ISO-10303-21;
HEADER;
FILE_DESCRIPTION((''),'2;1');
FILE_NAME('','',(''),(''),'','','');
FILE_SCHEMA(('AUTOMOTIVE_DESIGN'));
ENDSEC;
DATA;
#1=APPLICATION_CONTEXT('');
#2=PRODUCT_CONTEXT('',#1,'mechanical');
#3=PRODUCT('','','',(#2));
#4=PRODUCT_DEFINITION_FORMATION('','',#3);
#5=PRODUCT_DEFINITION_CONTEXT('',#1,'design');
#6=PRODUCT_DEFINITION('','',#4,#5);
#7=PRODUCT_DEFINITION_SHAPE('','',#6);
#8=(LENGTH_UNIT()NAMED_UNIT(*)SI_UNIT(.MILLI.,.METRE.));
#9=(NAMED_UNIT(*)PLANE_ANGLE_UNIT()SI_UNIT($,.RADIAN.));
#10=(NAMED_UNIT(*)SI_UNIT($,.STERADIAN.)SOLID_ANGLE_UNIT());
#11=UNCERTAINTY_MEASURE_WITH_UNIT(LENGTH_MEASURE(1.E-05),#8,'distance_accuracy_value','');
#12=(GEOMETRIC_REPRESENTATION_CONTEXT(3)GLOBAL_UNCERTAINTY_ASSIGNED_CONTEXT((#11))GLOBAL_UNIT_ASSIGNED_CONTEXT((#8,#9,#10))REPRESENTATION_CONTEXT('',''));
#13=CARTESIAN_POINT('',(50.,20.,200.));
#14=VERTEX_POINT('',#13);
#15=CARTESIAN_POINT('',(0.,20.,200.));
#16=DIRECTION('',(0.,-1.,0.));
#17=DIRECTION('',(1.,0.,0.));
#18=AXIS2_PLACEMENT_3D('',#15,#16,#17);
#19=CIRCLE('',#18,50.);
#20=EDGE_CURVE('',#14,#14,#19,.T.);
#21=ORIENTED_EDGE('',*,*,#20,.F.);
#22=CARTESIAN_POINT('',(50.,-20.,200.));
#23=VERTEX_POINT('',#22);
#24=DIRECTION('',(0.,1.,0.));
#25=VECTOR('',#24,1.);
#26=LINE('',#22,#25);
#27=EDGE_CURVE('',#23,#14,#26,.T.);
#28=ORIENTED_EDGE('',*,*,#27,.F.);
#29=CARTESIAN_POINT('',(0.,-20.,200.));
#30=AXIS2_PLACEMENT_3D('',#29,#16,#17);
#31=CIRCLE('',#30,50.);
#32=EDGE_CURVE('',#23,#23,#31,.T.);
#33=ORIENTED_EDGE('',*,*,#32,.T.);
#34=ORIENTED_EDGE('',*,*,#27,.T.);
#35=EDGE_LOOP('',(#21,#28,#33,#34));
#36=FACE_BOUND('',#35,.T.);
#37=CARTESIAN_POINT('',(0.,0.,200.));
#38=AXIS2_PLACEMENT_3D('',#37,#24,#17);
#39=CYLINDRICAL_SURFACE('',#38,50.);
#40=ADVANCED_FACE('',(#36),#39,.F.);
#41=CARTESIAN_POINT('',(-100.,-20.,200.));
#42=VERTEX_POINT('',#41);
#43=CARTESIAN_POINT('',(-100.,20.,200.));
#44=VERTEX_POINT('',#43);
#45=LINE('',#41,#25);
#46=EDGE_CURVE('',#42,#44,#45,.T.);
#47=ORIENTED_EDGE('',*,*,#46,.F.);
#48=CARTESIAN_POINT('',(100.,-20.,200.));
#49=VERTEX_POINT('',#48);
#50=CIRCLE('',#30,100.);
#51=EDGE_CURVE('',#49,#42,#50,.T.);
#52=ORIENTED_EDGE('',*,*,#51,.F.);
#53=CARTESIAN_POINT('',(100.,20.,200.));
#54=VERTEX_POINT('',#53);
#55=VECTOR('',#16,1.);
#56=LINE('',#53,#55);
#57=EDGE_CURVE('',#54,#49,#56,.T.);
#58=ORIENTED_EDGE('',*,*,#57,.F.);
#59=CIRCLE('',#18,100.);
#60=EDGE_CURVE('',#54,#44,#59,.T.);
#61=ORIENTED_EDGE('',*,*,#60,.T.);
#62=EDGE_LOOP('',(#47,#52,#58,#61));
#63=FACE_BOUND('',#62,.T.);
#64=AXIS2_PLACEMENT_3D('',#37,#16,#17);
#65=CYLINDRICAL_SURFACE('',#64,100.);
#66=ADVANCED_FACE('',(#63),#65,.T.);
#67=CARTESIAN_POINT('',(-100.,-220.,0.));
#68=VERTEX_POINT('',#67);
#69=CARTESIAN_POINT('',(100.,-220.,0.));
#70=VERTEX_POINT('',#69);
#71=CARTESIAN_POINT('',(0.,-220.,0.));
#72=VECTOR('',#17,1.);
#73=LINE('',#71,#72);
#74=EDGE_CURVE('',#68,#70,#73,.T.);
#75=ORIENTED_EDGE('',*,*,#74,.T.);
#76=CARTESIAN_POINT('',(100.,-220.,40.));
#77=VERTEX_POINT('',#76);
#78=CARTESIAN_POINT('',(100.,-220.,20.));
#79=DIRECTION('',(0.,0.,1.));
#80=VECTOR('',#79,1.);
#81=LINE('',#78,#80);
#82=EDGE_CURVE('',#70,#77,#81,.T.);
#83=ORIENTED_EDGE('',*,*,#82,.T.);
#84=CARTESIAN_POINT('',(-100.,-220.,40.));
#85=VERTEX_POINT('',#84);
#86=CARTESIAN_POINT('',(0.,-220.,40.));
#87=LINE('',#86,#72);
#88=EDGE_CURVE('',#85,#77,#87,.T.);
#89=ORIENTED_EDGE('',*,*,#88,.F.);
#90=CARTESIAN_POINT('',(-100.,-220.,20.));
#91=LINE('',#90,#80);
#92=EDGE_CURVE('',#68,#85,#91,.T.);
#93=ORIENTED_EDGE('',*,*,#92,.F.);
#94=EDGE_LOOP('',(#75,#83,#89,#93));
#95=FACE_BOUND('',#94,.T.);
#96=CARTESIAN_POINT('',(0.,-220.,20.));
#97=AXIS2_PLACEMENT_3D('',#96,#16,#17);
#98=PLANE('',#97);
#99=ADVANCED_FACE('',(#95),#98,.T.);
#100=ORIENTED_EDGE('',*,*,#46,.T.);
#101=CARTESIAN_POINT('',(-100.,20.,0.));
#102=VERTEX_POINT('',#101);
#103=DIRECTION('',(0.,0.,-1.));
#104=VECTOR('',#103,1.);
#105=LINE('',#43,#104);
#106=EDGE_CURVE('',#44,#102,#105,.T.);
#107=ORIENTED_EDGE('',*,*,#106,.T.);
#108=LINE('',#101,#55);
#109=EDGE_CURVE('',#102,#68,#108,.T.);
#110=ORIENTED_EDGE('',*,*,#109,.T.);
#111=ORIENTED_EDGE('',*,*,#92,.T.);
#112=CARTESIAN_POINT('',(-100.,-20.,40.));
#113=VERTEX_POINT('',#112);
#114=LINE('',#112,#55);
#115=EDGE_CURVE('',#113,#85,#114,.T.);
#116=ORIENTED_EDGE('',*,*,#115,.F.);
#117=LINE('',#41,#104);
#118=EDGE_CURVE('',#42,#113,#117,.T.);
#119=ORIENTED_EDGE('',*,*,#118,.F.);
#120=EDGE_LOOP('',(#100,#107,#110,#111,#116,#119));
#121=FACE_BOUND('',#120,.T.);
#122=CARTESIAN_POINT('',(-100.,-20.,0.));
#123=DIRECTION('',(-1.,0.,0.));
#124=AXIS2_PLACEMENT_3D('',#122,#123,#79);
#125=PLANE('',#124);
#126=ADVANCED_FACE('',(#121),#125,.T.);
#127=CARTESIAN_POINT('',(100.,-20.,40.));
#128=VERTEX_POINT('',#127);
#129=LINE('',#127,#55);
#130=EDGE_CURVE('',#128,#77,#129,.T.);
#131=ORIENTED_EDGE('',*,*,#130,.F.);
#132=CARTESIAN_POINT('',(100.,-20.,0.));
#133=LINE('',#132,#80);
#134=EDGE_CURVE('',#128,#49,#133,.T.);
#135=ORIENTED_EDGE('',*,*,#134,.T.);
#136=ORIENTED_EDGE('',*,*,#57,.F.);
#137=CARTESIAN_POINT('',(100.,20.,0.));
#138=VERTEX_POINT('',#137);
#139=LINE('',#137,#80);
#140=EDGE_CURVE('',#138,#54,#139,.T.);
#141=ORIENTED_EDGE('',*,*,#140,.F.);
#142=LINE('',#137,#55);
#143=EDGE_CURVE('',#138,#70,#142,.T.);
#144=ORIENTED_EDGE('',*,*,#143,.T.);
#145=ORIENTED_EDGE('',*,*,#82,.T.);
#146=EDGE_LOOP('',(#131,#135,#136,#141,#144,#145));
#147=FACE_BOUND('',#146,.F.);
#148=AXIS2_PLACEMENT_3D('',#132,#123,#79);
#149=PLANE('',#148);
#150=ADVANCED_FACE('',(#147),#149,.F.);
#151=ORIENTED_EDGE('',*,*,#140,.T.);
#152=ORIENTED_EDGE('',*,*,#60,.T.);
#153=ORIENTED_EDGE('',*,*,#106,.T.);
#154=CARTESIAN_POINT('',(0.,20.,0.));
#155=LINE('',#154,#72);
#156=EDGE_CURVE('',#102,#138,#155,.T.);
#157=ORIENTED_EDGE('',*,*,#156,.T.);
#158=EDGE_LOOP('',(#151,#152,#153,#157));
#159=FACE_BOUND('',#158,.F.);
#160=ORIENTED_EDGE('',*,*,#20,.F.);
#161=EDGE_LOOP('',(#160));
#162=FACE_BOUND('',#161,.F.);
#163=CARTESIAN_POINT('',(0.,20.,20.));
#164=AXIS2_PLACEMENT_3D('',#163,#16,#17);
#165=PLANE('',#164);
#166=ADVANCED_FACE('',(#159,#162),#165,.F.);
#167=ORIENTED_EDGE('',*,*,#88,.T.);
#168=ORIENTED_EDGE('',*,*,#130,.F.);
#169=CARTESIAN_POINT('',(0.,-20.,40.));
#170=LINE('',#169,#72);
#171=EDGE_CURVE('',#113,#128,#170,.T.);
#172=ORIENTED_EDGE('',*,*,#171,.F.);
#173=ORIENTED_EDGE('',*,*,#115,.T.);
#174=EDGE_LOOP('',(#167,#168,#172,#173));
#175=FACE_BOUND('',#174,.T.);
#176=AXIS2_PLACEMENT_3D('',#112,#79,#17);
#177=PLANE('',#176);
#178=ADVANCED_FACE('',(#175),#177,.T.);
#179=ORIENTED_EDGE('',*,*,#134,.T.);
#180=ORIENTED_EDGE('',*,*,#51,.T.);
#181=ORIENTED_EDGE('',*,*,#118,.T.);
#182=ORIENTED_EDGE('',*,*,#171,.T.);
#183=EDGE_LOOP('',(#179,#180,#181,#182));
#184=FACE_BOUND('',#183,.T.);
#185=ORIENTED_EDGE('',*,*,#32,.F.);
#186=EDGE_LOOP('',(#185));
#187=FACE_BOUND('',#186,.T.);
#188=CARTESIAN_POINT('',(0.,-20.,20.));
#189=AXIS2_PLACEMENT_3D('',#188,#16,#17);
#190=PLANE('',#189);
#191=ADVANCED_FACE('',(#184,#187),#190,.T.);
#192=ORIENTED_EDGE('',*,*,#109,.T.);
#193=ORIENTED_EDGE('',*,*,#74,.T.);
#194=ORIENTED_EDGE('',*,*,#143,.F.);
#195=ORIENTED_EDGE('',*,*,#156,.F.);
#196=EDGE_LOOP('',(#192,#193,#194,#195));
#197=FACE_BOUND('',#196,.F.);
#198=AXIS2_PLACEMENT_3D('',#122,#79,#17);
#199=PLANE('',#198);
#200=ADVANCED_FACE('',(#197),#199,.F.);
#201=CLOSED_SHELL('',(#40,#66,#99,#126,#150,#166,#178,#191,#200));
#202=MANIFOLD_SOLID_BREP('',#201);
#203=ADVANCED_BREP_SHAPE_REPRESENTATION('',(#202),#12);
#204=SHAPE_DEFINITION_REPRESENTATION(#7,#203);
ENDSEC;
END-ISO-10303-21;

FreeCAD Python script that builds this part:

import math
import FreeCAD as App
import Part
import Sketcher
from FreeCAD import Vector
Q = App.Units.Quantity

doc = App.newDocument("Part")
params = doc.addObject("Spreadsheet::Sheet", "Params")
for row, (alias, value) in enumerate([
    ("sketch1_diameter", "100 mm"),
    ("sketch1_radius", "100 mm"),
    ("pad1_length", "40 mm"),
    ("sketch2_width", "200 mm"),
    ("sketch2_height", "40 mm"),
    ("pad2_length", "200 mm"),
], start=1):
    params.set(f"A{row}", alias)
    params.set(f"B{row}", "=" + value)
    params.setAlias(f"B{row}", alias)

body = doc.addObject("PartDesign::Body", "Body")

# Sketch on XZ plane
sketch1 = body.newObject("Sketcher::SketchObject", "Sketch")
sketch1.AttachmentSupport = (doc.getObject("XZ_Plane"), [""])
sketch1.MapMode = "FlatFace"
sketch1.addGeometry(Part.LineSegment(Vector(-100, 0, 0), Vector(100, 0, 0)), False)
sketch1.addGeometry(Part.LineSegment(Vector(100, 0, 0), Vector(100, 200, 0)), False)
sketch1.addGeometry(Part.ArcOfCircle(Part.Circle(Vector(0, 200, 0), Vector(0, 0, 1), 100), math.radians(0), math.radians(180)), False)
sketch1.addGeometry(Part.LineSegment(Vector(-100, 200, 0), Vector(-100, 0, 0)), False)
sketch1.addGeometry(Part.Circle(Vector(0, 200, 0), Vector(0, 0, 1), 50), False)
sketch1.addConstraint(Sketcher.Constraint("Coincident", 0, 2, 1, 1))
sketch1.addConstraint(Sketcher.Constraint("Tangent", 1, 2, 2, 1))
sketch1.addConstraint(Sketcher.Constraint("Tangent", 2, 2, 3, 1))
sketch1.addConstraint(Sketcher.Constraint("Coincident", 3, 2, 0, 1))
sketch1.addConstraint(Sketcher.Constraint("Horizontal", 0))
sketch1.addConstraint(Sketcher.Constraint("Vertical", 1))
sketch1.addConstraint(Sketcher.Constraint("Vertical", 3))
sketch1.addConstraint(Sketcher.Constraint("Coincident", 4, 3, 2, 3))
sketch1.addConstraint(Sketcher.Constraint("Symmetric", 0, 2, 3, 2, -1, 1))
sketch1.addConstraint(Sketcher.Constraint("Equal", 0, 1))
sketch1.addConstraint(Sketcher.Constraint("Diameter", 4, Q("100 mm")))
sketch1.addConstraint(Sketcher.Constraint("Radius", 2, Q("100 mm")))
sketch1.setExpression("Constraints[10]", "Params.sketch1_diameter")
sketch1.setExpression("Constraints[11]", "Params.sketch1_radius")
pad1 = body.newObject("PartDesign::Pad", "Pad")
pad1.Profile = sketch1
pad1.setExpression("Length", "Params.pad1_length")
pad1.Midplane = True

# Sketch on XZ plane
sketch2 = body.newObject("Sketcher::SketchObject", "Sketch001")
sketch2.AttachmentSupport = (doc.getObject("XZ_Plane"), [""])
sketch2.MapMode = "FlatFace"
sketch2.AttachmentOffset = App.Placement(Vector(0, 0, 20), App.Rotation())
sketch2.addGeometry(Part.LineSegment(Vector(-100, 40, 0), Vector(-100, 0, 0)), False)
sketch2.addGeometry(Part.LineSegment(Vector(-100, 0, 0), Vector(100, 0, 0)), False)
sketch2.addGeometry(Part.LineSegment(Vector(100, 0, 0), Vector(100, 40, 0)), False)
sketch2.addGeometry(Part.LineSegment(Vector(100, 40, 0), Vector(-100, 40, 0)), False)
sketch2.addConstraint(Sketcher.Constraint("Coincident", 0, 2, 1, 1))
sketch2.addConstraint(Sketcher.Constraint("Coincident", 1, 2, 2, 1))
sketch2.addConstraint(Sketcher.Constraint("Coincident", 2, 2, 3, 1))
sketch2.addConstraint(Sketcher.Constraint("Coincident", 3, 2, 0, 1))
sketch2.addConstraint(Sketcher.Constraint("Vertical", 0))
sketch2.addConstraint(Sketcher.Constraint("Horizontal", 1))
sketch2.addConstraint(Sketcher.Constraint("Vertical", 2))
sketch2.addConstraint(Sketcher.Constraint("Horizontal", 3))
sketch2.addConstraint(Sketcher.Constraint("Symmetric", 0, 2, 1, 2, -1, 1))
sketch2.addConstraint(Sketcher.Constraint("DistanceX", 1, 1, 1, 2, Q("200 mm")))
sketch2.addConstraint(Sketcher.Constraint("DistanceY", 0, 2, 0, 1, Q("40 mm")))
sketch2.setExpression("Constraints[9]", "Params.sketch2_width")
sketch2.setExpression("Constraints[10]", "Params.sketch2_height")
pad2 = body.newObject("PartDesign::Pad", "Pad001")
pad2.Profile = sketch2
pad2.setExpression("Length", "Params.pad2_length")

doc.recompute()
